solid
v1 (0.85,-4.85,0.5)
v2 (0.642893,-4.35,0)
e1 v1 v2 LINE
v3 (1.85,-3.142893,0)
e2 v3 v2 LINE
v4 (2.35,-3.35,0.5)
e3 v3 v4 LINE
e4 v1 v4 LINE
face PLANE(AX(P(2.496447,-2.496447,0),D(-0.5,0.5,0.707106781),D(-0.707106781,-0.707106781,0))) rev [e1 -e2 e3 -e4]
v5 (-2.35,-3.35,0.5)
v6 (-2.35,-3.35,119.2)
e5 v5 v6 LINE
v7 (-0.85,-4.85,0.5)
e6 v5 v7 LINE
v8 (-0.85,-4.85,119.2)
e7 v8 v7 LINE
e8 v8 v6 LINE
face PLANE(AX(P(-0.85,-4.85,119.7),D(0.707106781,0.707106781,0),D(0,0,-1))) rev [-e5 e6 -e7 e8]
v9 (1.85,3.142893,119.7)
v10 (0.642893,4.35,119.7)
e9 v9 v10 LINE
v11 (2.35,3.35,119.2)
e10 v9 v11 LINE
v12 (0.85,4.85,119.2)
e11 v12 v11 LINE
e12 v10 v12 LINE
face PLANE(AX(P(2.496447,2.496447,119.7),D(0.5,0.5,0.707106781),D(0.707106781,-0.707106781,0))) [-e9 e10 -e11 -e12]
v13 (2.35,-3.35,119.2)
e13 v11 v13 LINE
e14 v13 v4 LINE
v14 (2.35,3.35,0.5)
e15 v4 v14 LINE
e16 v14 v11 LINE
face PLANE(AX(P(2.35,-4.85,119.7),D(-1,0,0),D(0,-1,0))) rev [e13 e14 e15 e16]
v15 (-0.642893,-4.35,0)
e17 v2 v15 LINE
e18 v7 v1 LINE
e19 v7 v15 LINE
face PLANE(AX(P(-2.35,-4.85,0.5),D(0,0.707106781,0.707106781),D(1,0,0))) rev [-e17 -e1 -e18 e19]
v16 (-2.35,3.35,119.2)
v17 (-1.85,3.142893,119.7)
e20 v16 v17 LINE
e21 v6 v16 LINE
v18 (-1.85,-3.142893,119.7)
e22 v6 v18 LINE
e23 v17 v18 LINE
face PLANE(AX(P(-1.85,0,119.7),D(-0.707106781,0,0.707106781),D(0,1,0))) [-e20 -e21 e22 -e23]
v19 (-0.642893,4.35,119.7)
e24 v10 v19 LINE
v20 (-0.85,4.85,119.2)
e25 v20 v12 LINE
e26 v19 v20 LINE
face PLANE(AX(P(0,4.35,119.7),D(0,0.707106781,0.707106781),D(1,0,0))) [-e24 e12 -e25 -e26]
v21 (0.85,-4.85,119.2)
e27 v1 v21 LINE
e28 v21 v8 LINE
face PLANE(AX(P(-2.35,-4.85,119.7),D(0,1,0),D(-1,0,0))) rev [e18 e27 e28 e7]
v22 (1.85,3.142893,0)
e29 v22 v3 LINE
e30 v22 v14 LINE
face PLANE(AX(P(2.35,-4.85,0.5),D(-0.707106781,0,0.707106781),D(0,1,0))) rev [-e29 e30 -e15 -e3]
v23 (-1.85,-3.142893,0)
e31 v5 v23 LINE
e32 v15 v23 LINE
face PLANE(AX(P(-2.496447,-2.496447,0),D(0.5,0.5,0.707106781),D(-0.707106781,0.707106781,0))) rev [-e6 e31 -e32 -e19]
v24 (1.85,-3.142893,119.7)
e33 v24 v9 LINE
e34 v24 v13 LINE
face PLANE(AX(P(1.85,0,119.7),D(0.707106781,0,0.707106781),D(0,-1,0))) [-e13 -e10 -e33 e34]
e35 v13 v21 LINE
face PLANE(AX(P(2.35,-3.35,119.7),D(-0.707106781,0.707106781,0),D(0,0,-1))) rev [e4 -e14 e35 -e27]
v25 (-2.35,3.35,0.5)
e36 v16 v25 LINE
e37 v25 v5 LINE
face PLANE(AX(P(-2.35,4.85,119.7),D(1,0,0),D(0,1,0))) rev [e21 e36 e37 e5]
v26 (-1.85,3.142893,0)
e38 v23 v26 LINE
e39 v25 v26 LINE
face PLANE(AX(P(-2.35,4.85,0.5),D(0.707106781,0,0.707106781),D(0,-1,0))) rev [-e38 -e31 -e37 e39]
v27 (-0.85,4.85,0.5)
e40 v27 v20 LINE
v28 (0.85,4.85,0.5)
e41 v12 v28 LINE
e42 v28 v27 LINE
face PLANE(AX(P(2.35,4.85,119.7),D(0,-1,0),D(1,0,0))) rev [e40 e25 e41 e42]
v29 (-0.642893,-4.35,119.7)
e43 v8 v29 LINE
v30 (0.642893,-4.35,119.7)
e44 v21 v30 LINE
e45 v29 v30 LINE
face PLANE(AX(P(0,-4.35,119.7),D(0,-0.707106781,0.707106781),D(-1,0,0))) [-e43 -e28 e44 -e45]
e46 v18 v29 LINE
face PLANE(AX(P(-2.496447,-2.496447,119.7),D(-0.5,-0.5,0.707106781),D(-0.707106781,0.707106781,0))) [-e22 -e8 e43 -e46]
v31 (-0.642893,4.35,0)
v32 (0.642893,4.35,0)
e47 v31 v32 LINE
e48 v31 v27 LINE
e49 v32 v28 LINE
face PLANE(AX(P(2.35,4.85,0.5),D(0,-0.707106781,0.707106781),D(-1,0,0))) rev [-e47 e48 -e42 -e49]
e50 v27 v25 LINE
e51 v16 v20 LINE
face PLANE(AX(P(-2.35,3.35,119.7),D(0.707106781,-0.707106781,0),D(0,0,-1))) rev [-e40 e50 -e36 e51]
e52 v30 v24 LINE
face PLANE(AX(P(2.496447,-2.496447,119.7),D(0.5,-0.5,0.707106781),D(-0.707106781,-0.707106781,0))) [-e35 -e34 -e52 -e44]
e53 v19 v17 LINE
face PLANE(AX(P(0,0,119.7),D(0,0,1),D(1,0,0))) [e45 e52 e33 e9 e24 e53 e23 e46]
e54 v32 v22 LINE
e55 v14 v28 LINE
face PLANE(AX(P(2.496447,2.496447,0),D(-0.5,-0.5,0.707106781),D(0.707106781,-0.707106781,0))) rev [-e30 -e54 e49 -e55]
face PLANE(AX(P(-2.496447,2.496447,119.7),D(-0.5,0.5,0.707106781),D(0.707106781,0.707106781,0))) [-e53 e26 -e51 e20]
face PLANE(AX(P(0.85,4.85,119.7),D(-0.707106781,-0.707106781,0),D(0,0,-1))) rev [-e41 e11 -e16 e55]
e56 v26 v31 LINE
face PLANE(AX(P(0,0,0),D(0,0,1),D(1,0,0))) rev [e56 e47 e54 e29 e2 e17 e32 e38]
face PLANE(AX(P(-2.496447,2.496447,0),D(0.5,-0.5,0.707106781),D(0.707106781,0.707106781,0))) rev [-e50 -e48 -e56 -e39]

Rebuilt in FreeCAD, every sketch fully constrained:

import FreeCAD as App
import Part
import Sketcher

V = App.Vector
Q = App.Units.Quantity


def edges_at(feature, points):
    """Names of the edges that pass closest to the given points."""
    edges = feature.Shape.Edges
    near = lambda p: min(range(len(edges)), key=lambda i: edges[i].distToShape(Part.Vertex(*p))[0])
    return sorted({f"Edge{near(p) + 1}" for p in points})

doc = App.newDocument("Part")
body = doc.addObject("PartDesign::Body", "Body")

# Sketch on XY plane
sketch1 = body.newObject("Sketcher::SketchObject", "Sketch")
sketch1.AttachmentSupport = (doc.getObject("XY_Plane"), [""])
sketch1.MapMode = "FlatFace"
sketch1.addGeometry([
    Part.LineSegment(V(-2.4, 4.8, 0), V(-2.4, -4.8, 0)),
    Part.LineSegment(V(-2.4, -4.8, 0), V(2.4, -4.8, 0)),
    Part.LineSegment(V(2.4, -4.8, 0), V(2.4, 4.8, 0)),
    Part.LineSegment(V(2.4, 4.8, 0), V(-2.4, 4.8, 0)),
], False)
sketch1.addConstraint([
    Sketcher.Constraint("Coincident", 0, 2, 1, 1),
    Sketcher.Constraint("Coincident", 1, 2, 2, 1),
    Sketcher.Constraint("Coincident", 2, 2, 3, 1),
    Sketcher.Constraint("Coincident", 3, 2, 0, 1),
    Sketcher.Constraint("Vertical", 0),
    Sketcher.Constraint("Horizontal", 1),
    Sketcher.Constraint("Vertical", 2),
    Sketcher.Constraint("Horizontal", 3),
    Sketcher.Constraint("Symmetric", 0, 2, 2, 2, -1, 1),
    Sketcher.Constraint("DistanceX", 1, 1, 1, 2, Q("4.7 mm")),
    Sketcher.Constraint("DistanceY", 0, 2, 0, 1, Q("9.7 mm")),
])
pad1 = body.newObject("PartDesign::Pad", "Pad")
pad1.Profile = sketch1
pad1.Length = 119.7
doc.recompute()

chamfer = body.newObject("PartDesign::Chamfer", "Chamfer")
chamfer.Base = (pad1, edges_at(pad1, [
    (2.35, -4.85, 59.85),
    (-2.35, -4.85, 59.85),
    (-2.35, 4.85, 59.85),
    (2.35, 4.85, 59.85),
]))
chamfer.Size = 1.5
doc.recompute()

chamfer2 = body.newObject("PartDesign::Chamfer", "Chamfer001")
chamfer2.Base = (chamfer, edges_at(chamfer, [
    (0, -4.85, 0),
    (0, -4.85, 119.7),
    (2.35, 0, 0),
    (-2.35, 0, 0),
    (0, 4.85, 0),
    (1.6, 4.1, 0),
    (1.6, -4.1, 0),
    (-1.6, 4.1, 0),
    (-1.6, -4.1, 0),
    (-2.35, 0, 119.7),
    (2.35, 0, 119.7),
    (0, 4.85, 119.7),
    (1.6, 4.1, 119.7),
    (1.6, -4.1, 119.7),
    (-1.6, 4.1, 119.7),
    (-1.6, -4.1, 119.7),
]))
chamfer2.Size = 0.5

doc.recompute()
